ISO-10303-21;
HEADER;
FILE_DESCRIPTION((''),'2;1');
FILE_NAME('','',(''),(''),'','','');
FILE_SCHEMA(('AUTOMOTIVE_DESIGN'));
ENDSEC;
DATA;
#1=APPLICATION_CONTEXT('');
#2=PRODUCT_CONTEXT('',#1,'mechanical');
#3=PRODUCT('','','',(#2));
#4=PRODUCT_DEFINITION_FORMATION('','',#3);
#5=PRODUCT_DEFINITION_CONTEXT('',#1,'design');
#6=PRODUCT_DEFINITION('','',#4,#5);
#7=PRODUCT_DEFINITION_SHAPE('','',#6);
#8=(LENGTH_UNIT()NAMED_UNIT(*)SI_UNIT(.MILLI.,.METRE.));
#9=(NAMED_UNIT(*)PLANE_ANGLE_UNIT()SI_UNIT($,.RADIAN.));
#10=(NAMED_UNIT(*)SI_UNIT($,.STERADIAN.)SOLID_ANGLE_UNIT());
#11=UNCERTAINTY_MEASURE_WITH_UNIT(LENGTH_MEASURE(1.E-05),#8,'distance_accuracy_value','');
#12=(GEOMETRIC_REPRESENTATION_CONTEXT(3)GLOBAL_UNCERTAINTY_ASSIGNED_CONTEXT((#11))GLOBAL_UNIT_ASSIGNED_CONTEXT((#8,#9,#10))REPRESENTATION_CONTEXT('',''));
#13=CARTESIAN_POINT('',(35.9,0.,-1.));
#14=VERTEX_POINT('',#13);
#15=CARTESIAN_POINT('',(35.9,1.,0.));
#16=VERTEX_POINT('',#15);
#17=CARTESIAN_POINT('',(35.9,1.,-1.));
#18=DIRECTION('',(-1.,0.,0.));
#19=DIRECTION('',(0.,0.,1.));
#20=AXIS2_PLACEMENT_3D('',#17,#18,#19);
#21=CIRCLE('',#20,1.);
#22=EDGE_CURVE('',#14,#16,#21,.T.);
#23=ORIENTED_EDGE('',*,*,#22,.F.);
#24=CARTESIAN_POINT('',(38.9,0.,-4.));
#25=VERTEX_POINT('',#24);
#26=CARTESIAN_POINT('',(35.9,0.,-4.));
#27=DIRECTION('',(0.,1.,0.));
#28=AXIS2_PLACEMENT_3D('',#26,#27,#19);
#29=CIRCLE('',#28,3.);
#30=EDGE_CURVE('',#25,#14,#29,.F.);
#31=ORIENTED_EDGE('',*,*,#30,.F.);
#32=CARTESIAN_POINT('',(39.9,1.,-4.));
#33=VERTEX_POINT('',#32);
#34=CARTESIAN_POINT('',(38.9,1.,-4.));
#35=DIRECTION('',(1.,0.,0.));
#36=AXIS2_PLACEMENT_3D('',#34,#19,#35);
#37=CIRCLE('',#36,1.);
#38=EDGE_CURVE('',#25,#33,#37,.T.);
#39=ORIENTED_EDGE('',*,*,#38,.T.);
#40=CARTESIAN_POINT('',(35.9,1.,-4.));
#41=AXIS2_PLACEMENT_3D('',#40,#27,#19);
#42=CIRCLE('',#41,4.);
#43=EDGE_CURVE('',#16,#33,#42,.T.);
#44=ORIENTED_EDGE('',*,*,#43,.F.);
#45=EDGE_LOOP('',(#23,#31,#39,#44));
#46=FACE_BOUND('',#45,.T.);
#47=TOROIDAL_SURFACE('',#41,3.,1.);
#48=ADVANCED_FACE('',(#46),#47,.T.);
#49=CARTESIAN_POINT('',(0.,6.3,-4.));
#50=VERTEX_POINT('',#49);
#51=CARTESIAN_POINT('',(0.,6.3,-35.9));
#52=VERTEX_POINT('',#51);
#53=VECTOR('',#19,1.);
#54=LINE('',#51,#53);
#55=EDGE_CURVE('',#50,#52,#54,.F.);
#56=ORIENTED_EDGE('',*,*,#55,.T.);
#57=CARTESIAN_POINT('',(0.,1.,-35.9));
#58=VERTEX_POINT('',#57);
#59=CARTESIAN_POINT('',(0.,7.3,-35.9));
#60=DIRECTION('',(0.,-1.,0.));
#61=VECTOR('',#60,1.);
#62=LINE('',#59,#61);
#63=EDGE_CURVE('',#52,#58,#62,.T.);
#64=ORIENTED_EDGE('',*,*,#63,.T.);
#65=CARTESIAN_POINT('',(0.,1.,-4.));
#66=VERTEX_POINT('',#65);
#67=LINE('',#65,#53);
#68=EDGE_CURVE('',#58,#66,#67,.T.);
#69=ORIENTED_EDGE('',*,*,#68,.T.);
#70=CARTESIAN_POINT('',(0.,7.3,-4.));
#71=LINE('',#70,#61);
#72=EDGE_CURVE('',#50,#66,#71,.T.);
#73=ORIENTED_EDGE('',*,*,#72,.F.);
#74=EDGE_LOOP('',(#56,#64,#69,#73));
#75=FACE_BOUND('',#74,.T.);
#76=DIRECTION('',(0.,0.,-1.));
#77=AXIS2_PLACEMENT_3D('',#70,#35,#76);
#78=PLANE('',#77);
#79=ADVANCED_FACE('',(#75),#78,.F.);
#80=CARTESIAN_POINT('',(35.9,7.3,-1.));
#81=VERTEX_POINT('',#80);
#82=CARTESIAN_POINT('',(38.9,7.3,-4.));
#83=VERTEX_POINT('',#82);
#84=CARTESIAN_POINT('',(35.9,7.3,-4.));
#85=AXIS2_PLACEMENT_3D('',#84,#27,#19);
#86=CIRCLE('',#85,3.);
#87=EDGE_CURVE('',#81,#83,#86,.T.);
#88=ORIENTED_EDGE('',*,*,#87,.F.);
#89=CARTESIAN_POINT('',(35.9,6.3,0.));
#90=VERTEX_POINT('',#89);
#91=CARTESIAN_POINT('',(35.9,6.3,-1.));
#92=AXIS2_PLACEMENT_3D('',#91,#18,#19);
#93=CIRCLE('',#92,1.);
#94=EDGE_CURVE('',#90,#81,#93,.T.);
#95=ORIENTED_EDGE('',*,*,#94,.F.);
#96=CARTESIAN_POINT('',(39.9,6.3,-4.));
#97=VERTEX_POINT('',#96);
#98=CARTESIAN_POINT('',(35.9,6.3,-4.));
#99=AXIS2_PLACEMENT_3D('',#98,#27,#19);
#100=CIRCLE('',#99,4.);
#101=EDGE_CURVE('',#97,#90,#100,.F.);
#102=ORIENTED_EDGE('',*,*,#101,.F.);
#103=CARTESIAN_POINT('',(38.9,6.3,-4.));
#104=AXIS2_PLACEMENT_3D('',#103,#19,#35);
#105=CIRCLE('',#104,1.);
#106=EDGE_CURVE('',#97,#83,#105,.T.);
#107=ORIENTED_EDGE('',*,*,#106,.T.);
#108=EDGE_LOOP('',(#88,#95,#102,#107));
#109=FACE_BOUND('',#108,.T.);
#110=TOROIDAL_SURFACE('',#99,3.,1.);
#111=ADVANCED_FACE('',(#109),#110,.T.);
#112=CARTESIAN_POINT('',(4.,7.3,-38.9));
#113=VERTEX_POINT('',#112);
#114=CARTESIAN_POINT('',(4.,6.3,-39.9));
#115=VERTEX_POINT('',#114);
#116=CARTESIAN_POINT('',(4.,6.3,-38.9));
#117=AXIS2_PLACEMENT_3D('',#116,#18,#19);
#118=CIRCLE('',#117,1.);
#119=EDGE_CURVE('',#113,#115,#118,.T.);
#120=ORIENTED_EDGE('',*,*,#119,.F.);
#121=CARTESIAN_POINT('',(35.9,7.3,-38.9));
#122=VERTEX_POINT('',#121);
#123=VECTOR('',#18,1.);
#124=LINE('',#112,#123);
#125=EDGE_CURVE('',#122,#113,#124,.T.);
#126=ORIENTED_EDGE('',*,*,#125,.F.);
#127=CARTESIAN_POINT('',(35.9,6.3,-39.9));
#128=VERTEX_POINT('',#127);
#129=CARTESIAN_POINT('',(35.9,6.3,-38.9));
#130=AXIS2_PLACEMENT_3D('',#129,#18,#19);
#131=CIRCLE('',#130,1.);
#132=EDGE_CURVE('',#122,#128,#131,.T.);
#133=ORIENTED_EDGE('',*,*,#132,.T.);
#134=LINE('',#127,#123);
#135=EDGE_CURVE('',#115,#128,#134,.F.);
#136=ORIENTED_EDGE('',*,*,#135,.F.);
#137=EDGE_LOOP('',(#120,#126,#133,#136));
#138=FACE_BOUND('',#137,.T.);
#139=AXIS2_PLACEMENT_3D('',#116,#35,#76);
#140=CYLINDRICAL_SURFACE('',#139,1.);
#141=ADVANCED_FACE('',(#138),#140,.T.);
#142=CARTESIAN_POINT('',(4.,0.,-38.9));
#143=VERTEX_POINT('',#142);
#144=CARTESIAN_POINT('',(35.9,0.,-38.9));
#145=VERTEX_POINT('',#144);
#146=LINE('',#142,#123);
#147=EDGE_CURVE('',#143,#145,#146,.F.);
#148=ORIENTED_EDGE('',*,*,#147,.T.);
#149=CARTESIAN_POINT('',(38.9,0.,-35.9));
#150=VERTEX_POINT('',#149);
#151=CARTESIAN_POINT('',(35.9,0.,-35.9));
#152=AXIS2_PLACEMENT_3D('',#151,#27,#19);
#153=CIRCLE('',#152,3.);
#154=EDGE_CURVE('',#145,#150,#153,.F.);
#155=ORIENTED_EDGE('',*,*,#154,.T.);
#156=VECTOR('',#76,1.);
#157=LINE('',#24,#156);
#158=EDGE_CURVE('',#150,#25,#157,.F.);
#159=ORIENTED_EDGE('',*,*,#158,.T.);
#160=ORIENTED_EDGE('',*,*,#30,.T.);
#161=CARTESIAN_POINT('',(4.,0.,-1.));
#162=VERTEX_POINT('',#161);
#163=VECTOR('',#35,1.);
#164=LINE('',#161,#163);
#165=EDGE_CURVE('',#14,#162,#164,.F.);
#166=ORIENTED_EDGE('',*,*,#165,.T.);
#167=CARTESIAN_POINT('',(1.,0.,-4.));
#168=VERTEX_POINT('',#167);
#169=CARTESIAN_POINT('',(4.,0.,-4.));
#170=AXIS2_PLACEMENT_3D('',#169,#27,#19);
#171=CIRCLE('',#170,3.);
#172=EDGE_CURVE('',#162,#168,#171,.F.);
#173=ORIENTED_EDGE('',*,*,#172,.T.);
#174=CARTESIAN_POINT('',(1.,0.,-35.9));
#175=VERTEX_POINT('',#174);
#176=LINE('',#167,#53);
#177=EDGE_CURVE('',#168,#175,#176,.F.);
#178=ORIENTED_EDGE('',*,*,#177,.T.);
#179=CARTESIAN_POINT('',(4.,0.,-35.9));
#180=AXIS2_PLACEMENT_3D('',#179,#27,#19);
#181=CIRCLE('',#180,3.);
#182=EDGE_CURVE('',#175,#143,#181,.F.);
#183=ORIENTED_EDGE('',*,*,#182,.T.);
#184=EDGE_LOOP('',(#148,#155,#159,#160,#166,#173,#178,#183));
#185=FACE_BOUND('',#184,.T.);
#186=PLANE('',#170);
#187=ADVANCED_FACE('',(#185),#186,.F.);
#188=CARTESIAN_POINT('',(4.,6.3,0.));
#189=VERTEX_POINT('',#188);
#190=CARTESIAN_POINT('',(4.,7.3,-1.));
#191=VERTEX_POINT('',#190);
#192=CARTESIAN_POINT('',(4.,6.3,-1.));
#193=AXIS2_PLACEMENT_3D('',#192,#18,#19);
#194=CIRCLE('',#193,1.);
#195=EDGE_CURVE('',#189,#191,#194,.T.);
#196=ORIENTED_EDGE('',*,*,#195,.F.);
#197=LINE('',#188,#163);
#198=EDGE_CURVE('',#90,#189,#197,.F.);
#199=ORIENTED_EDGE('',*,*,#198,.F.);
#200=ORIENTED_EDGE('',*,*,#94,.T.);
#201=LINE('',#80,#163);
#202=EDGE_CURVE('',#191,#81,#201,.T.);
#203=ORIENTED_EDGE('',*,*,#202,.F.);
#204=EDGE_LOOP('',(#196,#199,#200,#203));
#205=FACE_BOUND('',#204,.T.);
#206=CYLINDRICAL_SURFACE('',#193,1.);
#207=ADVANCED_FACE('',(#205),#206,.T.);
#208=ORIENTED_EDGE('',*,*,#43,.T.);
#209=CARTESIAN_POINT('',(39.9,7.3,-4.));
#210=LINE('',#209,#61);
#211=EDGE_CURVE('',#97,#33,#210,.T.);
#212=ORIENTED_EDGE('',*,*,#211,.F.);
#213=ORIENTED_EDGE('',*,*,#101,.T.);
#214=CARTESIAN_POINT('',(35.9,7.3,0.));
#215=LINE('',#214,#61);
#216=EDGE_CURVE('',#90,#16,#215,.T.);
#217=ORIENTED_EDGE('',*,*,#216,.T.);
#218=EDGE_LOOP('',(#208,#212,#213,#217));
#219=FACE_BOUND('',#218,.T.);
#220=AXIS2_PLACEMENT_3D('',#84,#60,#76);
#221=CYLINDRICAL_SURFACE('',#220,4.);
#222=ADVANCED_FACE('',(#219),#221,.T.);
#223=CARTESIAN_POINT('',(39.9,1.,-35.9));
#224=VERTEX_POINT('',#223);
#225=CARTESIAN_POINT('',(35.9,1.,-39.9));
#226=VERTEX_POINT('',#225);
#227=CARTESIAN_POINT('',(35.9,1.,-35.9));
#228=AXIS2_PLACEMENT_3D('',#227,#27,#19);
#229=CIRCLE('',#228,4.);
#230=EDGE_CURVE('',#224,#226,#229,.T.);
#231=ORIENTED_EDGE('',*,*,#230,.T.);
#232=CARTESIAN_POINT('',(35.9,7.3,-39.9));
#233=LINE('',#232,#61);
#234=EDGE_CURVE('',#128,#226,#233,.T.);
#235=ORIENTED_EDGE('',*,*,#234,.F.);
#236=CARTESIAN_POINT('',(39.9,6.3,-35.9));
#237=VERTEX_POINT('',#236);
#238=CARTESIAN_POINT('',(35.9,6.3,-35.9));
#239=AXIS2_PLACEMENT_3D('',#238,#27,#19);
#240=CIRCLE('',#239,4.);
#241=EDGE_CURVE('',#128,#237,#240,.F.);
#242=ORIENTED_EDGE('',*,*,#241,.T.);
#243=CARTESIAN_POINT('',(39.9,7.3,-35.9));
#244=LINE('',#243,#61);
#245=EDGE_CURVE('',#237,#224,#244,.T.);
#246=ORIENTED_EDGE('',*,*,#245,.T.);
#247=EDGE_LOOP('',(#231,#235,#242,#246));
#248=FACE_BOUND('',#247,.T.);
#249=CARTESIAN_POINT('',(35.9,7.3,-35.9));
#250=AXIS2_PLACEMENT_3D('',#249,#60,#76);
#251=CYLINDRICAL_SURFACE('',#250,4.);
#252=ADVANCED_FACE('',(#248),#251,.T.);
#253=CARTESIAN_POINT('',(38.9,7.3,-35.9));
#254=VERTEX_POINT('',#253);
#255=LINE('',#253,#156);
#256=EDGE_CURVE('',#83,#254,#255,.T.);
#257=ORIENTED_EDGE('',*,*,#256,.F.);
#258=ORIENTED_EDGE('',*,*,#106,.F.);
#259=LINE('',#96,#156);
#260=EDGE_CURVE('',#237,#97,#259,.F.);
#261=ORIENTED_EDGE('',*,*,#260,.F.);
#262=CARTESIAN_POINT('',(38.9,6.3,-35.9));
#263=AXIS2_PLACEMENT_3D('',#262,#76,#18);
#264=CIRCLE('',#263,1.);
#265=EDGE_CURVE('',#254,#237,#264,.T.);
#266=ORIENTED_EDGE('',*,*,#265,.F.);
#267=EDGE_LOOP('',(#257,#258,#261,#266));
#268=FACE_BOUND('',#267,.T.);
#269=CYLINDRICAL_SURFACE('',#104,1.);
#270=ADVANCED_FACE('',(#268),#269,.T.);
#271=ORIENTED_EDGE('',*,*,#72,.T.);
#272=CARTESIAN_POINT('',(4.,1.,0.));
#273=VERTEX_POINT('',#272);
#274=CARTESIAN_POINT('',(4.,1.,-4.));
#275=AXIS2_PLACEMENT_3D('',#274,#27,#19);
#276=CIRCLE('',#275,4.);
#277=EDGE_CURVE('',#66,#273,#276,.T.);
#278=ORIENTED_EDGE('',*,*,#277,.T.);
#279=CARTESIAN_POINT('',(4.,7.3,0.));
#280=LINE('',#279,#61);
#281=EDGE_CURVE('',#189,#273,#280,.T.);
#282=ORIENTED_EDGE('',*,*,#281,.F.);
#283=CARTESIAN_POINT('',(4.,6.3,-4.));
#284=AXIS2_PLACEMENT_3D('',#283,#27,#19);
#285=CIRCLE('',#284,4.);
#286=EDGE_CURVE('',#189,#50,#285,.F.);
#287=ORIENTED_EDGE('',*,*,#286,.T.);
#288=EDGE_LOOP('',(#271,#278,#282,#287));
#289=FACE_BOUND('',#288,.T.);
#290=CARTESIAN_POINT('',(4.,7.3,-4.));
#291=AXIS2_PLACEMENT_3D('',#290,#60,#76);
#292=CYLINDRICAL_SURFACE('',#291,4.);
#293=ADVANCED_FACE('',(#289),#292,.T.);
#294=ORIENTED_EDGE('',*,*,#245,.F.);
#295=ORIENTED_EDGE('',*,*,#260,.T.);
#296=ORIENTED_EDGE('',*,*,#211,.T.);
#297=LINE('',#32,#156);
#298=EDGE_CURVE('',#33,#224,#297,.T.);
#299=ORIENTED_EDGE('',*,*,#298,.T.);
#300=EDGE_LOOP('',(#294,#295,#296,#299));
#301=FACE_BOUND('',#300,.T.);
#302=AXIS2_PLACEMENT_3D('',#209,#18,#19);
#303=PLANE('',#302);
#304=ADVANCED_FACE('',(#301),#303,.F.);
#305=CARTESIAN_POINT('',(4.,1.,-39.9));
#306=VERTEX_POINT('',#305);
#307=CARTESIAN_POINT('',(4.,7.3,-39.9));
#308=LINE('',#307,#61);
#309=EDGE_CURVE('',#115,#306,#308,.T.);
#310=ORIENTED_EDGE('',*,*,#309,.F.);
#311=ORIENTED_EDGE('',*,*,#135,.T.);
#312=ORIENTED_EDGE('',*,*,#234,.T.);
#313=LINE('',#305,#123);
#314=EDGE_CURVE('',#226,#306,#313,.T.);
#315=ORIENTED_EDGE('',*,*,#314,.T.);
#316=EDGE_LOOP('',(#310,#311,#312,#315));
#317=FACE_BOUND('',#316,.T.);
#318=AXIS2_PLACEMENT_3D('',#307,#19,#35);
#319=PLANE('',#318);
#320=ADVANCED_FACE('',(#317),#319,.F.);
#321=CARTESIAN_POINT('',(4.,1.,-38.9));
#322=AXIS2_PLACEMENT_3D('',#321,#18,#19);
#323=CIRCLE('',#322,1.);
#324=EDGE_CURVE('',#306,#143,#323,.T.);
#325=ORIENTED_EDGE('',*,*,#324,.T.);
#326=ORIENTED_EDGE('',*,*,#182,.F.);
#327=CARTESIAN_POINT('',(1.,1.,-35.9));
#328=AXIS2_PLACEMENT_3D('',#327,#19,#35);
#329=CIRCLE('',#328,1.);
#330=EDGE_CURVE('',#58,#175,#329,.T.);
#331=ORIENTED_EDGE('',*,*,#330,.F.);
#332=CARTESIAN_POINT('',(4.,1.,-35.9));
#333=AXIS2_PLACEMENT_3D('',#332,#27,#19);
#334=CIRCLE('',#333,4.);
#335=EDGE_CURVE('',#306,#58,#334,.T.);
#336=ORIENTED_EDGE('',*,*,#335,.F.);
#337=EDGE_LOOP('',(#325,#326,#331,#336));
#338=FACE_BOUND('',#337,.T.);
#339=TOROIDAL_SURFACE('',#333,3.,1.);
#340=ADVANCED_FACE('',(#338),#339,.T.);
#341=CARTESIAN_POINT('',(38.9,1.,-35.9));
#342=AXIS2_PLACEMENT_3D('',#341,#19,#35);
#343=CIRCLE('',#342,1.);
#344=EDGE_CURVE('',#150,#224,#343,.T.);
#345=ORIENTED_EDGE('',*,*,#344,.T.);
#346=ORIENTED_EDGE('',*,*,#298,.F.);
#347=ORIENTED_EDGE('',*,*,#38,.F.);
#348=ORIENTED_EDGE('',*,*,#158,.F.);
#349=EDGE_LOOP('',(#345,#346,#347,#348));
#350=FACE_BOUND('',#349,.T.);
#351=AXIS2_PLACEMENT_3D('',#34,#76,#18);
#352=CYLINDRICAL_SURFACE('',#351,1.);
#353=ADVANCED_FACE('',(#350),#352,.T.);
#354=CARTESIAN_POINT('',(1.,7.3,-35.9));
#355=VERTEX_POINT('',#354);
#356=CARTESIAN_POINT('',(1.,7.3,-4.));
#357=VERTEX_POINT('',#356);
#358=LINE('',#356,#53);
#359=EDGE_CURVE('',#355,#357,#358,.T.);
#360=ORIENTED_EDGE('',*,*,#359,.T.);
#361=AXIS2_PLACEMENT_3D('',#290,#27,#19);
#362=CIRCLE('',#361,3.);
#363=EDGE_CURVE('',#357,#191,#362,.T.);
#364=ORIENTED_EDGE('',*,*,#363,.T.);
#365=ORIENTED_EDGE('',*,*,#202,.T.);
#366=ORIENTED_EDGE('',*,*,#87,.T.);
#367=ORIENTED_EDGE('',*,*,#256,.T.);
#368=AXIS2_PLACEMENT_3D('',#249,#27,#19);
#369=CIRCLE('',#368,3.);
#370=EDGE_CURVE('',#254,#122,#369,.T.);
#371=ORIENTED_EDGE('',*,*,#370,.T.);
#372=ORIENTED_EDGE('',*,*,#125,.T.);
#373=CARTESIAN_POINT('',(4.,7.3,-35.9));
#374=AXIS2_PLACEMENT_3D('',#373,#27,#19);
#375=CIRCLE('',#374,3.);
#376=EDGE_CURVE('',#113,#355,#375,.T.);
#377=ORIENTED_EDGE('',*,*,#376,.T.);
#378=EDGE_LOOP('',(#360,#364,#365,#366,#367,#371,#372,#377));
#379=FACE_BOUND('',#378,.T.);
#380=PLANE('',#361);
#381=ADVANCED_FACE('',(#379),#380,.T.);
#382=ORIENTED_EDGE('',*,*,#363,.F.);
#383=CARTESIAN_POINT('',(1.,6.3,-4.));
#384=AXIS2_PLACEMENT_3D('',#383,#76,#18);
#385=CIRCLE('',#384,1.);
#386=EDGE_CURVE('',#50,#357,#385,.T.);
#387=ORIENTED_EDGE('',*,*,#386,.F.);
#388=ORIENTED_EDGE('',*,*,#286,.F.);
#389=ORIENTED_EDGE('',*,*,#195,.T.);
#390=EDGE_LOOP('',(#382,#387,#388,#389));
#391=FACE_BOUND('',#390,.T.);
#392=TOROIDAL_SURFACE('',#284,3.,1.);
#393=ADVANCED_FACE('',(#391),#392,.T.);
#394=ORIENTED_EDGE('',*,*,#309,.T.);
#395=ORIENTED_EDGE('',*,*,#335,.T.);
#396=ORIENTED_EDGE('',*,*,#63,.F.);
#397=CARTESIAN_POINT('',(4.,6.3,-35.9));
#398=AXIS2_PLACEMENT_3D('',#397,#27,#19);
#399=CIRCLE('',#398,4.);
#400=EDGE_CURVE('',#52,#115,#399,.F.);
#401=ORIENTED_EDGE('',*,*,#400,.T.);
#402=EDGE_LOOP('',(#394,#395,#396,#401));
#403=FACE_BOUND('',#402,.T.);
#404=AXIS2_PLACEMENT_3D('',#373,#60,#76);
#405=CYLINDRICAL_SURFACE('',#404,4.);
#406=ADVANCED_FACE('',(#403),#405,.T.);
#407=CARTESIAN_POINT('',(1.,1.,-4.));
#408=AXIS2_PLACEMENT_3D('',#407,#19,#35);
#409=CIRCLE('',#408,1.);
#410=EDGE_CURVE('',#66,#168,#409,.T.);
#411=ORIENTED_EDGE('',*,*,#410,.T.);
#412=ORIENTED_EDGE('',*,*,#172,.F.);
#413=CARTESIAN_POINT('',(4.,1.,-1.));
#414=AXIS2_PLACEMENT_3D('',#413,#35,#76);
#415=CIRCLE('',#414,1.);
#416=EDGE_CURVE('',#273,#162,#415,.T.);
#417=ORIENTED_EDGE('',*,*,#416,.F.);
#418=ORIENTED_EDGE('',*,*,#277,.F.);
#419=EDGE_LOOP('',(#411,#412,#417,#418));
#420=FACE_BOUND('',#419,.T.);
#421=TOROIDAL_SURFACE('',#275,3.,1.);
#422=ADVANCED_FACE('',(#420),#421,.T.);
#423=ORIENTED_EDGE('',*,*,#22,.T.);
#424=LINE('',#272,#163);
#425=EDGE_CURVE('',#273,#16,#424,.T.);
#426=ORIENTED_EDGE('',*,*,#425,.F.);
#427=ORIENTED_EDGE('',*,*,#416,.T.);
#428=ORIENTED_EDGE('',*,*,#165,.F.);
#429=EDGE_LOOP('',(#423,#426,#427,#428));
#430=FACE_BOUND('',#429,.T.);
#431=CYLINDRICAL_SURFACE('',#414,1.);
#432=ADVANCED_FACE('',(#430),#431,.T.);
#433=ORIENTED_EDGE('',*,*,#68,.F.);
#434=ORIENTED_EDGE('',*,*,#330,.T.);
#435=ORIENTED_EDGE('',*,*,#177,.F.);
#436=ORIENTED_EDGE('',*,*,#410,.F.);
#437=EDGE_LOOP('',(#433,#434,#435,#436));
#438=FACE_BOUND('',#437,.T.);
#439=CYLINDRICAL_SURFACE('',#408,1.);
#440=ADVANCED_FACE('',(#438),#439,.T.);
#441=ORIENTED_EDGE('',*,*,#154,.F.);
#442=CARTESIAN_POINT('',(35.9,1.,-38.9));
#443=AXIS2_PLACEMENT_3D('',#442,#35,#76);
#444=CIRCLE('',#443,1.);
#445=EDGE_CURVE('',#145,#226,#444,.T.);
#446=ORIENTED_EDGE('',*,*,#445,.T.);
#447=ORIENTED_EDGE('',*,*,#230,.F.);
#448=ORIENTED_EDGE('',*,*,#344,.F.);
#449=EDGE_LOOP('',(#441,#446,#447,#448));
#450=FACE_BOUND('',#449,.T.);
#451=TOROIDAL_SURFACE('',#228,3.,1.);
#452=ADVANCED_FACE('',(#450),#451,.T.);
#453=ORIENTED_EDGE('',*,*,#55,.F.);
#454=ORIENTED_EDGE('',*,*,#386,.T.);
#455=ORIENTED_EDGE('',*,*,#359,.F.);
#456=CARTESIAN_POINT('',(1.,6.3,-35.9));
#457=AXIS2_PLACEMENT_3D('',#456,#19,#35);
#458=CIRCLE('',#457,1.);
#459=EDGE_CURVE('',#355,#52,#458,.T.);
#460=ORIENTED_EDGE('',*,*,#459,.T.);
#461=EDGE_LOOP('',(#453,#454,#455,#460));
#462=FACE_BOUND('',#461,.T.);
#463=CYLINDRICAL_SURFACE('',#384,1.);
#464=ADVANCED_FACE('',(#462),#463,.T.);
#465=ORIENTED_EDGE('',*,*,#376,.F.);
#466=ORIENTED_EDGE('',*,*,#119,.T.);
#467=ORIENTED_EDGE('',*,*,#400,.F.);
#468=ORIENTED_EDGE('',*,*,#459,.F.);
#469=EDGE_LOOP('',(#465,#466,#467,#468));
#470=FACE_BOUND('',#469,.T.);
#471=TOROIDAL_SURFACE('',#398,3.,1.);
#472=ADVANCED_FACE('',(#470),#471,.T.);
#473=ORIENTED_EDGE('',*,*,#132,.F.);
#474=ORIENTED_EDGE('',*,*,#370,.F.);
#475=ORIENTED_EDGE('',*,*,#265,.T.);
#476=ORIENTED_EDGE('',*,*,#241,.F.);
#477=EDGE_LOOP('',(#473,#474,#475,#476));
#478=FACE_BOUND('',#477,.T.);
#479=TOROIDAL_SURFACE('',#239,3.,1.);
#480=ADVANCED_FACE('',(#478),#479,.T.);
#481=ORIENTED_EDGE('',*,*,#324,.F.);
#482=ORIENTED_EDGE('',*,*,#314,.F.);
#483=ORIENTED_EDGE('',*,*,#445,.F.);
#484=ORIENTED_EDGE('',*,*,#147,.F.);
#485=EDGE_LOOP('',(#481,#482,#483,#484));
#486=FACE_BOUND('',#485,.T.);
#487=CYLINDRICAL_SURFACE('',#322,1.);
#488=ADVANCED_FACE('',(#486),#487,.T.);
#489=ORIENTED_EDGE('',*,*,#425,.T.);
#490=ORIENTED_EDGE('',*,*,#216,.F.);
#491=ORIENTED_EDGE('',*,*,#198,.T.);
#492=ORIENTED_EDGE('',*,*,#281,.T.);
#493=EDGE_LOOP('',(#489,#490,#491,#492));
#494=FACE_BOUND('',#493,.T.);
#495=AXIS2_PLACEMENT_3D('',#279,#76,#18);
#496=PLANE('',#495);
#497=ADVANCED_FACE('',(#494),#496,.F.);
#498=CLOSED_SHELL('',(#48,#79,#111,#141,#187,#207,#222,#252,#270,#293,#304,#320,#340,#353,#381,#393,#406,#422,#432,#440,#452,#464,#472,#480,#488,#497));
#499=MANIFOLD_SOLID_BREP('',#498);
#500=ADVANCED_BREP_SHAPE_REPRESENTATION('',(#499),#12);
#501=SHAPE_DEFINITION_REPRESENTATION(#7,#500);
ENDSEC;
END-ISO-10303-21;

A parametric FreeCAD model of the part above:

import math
import FreeCAD as App
import Part
import Sketcher

V = App.Vector
Q = App.Units.Quantity


def edges_at(feature, points):
    """Names of the edges that pass closest to the given points."""
    edges = feature.Shape.Edges
    near = lambda p: min(range(len(edges)), key=lambda i: edges[i].distToShape(Part.Vertex(*p))[0])
    return sorted({f"Edge{near(p) + 1}" for p in points})

doc = App.newDocument("Part")
body = doc.addObject("PartDesign::Body", "Body")

sketch1 = body.newObject("Sketcher::SketchObject", "Sketch")
sketch1.AttachmentSupport = (doc.getObject("XZ_Plane"), [""])
sketch1.MapMode = "FlatFace"
sketch1.addGeometry([
    Part.LineSegment(V(4, 0, 0), V(35.9, 0, 0)),
    Part.ArcOfCircle(Part.Circle(V(35.9, -4, 0), V(0, 0, 1), 4), math.radians(0), math.radians(90)),
    Part.LineSegment(V(39.9, -4, 0), V(39.9, -35.9, 0)),
    Part.ArcOfCircle(Part.Circle(V(35.9, -35.9, 0), V(0, 0, 1), 4), math.radians(-90), math.radians(0)),
    Part.LineSegment(V(35.9, -39.9, 0), V(4, -39.9, 0)),
    Part.ArcOfCircle(Part.Circle(V(4, -35.9, 0), V(0, 0, 1), 4), math.radians(180), math.radians(270)),
    Part.LineSegment(V(0, -35.9, 0), V(0, -4, 0)),
    Part.ArcOfCircle(Part.Circle(V(4, -4, 0), V(0, 0, 1), 4), math.radians(90), math.radians(180)),
], False)
sketch1.addConstraint([
    Sketcher.Constraint("Tangent", 0, 2, 1, 2),
    Sketcher.Constraint("Tangent", 1, 1, 2, 1),
    Sketcher.Constraint("Tangent", 2, 2, 3, 2),
    Sketcher.Constraint("Tangent", 3, 1, 4, 1),
    Sketcher.Constraint("Tangent", 4, 2, 5, 2),
    Sketcher.Constraint("Tangent", 5, 1, 6, 1),
    Sketcher.Constraint("Tangent", 6, 2, 7, 2),
    Sketcher.Constraint("Tangent", 7, 1, 0, 1),
    Sketcher.Constraint("Horizontal", 0),
    Sketcher.Constraint("Vertical", 2),
    Sketcher.Constraint("Horizontal", 4),
    Sketcher.Constraint("Vertical", 6),
    Sketcher.Constraint("Equal", 1, 3),
    Sketcher.Constraint("Equal", 3, 5),
    Sketcher.Constraint("Equal", 5, 7),
    Sketcher.Constraint("PointOnObject", 0, 2, -1),
    Sketcher.Constraint("PointOnObject", 5, 1, -2),
    Sketcher.Constraint("Equal", 4, 2),
    Sketcher.Constraint("Radius", 1, Q("4 mm")),
    Sketcher.Constraint("DistanceX", 0, 1, 0, 2, Q("31.9 mm")),
])
pad1 = body.newObject("PartDesign::Pad", "Pad")
pad1.Profile = sketch1
pad1.Length = 7.3
pad1.Reversed = True
doc.recompute()

fillet = body.newObject("PartDesign::Fillet", "Fillet")
fillet.Base = (pad1, edges_at(pad1, [
    (39.9, 0, -19.95),
    (38.728, 0, -1.172),
    (19.95, 0, 0),
    (1.172, 0, -1.172),
    (38.728, 7.3, -1.172),
    (39.9, 7.3, -19.95),
    (38.728, 7.3, -38.728),
    (19.95, 7.3, -39.9),
    (1.172, 7.3, -38.728),
    (0, 7.3, -19.95),
    (1.172, 7.3, -1.172),
    (0, 0, -19.95),
    (19.95, 7.3, 0),
    (1.172, 0, -38.728),
    (19.95, 0, -39.9),
    (38.728, 0, -38.728),
]))
fillet.Radius = 1

doc.recompute()
